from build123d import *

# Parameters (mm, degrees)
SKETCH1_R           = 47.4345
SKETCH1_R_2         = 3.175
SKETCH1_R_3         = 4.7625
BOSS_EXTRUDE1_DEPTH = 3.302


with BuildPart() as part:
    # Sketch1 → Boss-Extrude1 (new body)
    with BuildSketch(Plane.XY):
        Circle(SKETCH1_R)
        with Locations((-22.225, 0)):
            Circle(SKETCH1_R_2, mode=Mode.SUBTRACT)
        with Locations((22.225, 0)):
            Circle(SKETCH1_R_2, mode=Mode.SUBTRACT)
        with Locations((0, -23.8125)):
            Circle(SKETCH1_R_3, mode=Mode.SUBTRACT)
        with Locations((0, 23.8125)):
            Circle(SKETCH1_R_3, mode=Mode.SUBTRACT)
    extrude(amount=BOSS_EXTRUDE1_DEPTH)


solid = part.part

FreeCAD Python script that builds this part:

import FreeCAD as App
import Part
import Sketcher

V = App.Vector
Q = App.Units.Quantity

doc = App.newDocument("Part")
params = doc.addObject("Spreadsheet::Sheet", "Params")
for row, (alias, value) in enumerate([
    ("sketch1_diameter", "0.25 in"),
    ("sketch1_diameter2", "3.735 in"),
    ("sketch1_diameter3", "0.375 in"),
    ("pad1_length", "0.13 in"),
], start=1):
    params.set(f"A{row}", alias)
    params.set(f"B{row}", "=" + value)
    params.setAlias(f"B{row}", alias)

body = doc.addObject("PartDesign::Body", "Body")

sketch1 = body.newObject("Sketcher::SketchObject", "Sketch")
sketch1.AttachmentSupport = (doc.getObject("XY_Plane"), [""])
sketch1.MapMode = "FlatFace"
sketch1.addGeometry([
    Part.Circle(V(0, 0, 0), V(0, 0, 1), 47.4),
    Part.Circle(V(0, -23.8, 0), V(0, 0, 1), 4.8),
    Part.Circle(V(-22.2, 0, 0), V(0, 0, 1), 3.2),
    Part.Circle(V(22.2, 0, 0), V(0, 0, 1), 3.2),
    Part.Circle(V(0, 23.8, 0), V(0, 0, 1), 4.8),
], False)
sketch1.addConstraint([
    Sketcher.Constraint("Coincident", 0, 3, -1, 1),
    Sketcher.Constraint("Equal", 2, 3),
    Sketcher.Constraint("Equal", 1, 4),
    Sketcher.Constraint("Symmetric", 2, 3, 3, 3, -1, 1),
    Sketcher.Constraint("Symmetric", 1, 3, 4, 3, -1, 1),
    Sketcher.Constraint("PointOnObject", 1, 3, -2),
    Sketcher.Constraint("PointOnObject", 2, 3, -1),
    Sketcher.Constraint("Diameter", 2, Q("0.25 in")),
    Sketcher.Constraint("Diameter", 0, Q("3.735 in")),
    Sketcher.Constraint("Diameter", 1, Q("0.375 in")),
    Sketcher.Constraint("DistanceX", 2, 3, 3, 3, Q("1.75 in")),
    Sketcher.Constraint("DistanceY", 1, 3, -1, 1, Q("0.9375 in")),
])
sketch1.setExpression("Constraints[7]", "Params.sketch1_diameter")
sketch1.setExpression("Constraints[8]", "Params.sketch1_diameter2")
sketch1.setExpression("Constraints[9]", "Params.sketch1_diameter3")
pad1 = body.newObject("PartDesign::Pad", "Pad")
pad1.Profile = sketch1
pad1.setExpression("Length", "Params.pad1_length")

doc.recompute()
